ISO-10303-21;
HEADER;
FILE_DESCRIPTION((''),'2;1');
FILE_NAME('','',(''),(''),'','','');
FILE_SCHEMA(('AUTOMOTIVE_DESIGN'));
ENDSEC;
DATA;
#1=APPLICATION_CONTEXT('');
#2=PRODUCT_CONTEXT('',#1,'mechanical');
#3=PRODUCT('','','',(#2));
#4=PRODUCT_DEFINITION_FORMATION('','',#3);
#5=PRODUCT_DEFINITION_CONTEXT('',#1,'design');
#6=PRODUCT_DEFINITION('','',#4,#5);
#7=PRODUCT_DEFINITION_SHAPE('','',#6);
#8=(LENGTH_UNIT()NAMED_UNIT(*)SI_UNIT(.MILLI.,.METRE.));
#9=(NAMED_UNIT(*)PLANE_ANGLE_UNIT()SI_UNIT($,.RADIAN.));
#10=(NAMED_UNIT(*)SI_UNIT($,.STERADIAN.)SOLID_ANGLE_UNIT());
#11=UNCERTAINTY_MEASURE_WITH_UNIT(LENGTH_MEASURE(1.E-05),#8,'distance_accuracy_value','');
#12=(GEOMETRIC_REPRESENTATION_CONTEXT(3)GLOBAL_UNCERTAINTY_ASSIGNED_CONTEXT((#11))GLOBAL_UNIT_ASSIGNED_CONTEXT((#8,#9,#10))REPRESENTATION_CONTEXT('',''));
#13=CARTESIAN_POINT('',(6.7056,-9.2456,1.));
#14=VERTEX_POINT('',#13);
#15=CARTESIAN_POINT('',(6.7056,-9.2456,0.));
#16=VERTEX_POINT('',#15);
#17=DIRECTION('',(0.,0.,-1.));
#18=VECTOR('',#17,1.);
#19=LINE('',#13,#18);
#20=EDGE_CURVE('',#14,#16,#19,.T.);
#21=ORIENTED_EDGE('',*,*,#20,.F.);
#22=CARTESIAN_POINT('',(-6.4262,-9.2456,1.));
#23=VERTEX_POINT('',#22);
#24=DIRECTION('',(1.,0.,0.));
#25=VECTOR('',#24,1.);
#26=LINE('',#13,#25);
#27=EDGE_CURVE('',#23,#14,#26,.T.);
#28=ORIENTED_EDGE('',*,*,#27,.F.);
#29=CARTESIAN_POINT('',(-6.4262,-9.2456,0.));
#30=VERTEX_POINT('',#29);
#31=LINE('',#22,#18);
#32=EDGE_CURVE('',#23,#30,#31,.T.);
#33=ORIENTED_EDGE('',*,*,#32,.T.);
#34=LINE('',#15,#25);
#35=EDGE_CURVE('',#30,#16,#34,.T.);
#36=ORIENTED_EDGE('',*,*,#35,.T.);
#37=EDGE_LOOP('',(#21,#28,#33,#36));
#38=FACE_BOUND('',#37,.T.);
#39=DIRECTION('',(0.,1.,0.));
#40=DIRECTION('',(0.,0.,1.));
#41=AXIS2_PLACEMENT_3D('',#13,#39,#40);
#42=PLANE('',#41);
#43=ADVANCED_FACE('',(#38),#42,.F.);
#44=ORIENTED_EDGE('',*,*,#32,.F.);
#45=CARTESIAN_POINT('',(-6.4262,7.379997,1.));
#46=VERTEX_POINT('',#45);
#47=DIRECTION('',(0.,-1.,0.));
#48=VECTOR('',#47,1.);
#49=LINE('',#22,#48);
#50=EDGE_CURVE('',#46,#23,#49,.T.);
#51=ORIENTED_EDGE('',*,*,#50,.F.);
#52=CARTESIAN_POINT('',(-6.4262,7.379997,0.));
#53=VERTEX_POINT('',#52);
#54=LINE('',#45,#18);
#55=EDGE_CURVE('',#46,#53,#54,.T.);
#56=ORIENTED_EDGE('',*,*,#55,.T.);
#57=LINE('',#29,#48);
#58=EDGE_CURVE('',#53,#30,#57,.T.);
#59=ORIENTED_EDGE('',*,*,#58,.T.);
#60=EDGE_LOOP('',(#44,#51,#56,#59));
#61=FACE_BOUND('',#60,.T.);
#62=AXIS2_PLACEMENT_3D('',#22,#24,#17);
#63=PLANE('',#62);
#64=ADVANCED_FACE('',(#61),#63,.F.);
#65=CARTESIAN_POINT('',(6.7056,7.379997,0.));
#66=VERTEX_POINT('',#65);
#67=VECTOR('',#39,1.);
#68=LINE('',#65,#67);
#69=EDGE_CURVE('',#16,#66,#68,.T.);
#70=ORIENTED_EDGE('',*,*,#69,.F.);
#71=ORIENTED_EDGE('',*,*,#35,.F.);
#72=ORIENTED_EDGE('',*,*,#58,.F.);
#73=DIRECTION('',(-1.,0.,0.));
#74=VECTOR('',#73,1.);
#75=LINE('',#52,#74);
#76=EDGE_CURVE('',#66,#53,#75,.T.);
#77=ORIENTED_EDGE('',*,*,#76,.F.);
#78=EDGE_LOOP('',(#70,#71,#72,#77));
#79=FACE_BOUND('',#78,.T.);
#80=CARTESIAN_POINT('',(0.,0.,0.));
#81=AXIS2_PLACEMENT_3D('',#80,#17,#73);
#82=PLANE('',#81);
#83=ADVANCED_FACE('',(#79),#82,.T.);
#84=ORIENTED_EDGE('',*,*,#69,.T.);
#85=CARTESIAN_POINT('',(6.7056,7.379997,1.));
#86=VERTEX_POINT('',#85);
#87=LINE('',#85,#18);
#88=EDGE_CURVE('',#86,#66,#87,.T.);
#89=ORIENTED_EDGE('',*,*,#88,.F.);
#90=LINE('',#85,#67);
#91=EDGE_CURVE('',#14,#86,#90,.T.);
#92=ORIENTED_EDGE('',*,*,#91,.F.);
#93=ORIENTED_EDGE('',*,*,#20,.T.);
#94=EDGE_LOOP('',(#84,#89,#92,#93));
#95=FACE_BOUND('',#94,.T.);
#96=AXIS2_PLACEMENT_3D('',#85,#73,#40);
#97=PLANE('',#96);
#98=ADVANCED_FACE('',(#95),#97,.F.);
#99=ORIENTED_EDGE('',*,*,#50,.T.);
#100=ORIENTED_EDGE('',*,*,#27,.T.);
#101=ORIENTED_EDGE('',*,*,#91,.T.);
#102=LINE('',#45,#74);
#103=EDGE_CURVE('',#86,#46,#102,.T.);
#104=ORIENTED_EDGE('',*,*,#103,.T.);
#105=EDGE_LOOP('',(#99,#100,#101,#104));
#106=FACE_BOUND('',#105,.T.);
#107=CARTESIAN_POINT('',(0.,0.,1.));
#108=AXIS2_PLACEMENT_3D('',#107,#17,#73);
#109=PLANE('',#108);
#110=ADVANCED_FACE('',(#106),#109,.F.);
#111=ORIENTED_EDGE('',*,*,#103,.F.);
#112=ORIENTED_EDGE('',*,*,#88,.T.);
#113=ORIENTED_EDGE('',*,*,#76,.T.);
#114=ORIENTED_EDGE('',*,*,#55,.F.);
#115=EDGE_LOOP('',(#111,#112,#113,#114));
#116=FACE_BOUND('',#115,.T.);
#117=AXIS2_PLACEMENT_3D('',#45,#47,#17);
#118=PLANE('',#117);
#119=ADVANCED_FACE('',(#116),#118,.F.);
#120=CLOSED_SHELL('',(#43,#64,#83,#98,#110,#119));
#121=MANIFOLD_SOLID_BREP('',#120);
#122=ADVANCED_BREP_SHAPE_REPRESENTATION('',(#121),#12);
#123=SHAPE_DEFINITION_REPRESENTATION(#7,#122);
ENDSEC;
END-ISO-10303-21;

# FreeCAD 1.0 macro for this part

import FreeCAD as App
import Part
import Sketcher

V = App.Vector

doc = App.newDocument("Part")
body = doc.addObject("PartDesign::Body", "Body")

sketch1 = body.newObject("Sketcher::SketchObject", "Sketch")
sketch1.AttachmentSupport = (doc.getObject("XY_Plane"), [""])
sketch1.MapMode = "FlatFace"
sketch1.addGeometry(Part.LineSegment(V(-6, 7, 0), V(-6, -9, 0)), False)
sketch1.addGeometry(Part.LineSegment(V(-6, -9, 0), V(7, -9, 0)), False)
sketch1.addGeometry(Part.LineSegment(V(7, -9, 0), V(7, 7, 0)), False)
sketch1.addGeometry(Part.LineSegment(V(7, 7, 0), V(-6, 7, 0)), False)
sketch1.addConstraint(Sketcher.Constraint("Coincident", 0, 2, 1, 1))
sketch1.addConstraint(Sketcher.Constraint("Coincident", 1, 2, 2, 1))
sketch1.addConstraint(Sketcher.Constraint("Coincident", 2, 2, 3, 1))
sketch1.addConstraint(Sketcher.Constraint("Coincident", 3, 2, 0, 1))
sketch1.addConstraint(Sketcher.Constraint("Vertical", 0))
sketch1.addConstraint(Sketcher.Constraint("Horizontal", 1))
sketch1.addConstraint(Sketcher.Constraint("Vertical", 2))
sketch1.addConstraint(Sketcher.Constraint("Horizontal", 3))
sketch1.addConstraint(Sketcher.Constraint("DistanceX", 1, 1, 1, 2, 13.1318))
sketch1.addConstraint(Sketcher.Constraint("DistanceX", 0, 2, -1, 1, 6.4262))
sketch1.addConstraint(Sketcher.Constraint("DistanceY", 0, 2, -1, 1, 9.2456))
sketch1.addConstraint(Sketcher.Constraint("DistanceY", 0, 2, 0, 1, 16.625597))
pad1 = body.newObject("PartDesign::Pad", "Pad")
pad1.Profile = sketch1
pad1.Length = 1

doc.recompute()
